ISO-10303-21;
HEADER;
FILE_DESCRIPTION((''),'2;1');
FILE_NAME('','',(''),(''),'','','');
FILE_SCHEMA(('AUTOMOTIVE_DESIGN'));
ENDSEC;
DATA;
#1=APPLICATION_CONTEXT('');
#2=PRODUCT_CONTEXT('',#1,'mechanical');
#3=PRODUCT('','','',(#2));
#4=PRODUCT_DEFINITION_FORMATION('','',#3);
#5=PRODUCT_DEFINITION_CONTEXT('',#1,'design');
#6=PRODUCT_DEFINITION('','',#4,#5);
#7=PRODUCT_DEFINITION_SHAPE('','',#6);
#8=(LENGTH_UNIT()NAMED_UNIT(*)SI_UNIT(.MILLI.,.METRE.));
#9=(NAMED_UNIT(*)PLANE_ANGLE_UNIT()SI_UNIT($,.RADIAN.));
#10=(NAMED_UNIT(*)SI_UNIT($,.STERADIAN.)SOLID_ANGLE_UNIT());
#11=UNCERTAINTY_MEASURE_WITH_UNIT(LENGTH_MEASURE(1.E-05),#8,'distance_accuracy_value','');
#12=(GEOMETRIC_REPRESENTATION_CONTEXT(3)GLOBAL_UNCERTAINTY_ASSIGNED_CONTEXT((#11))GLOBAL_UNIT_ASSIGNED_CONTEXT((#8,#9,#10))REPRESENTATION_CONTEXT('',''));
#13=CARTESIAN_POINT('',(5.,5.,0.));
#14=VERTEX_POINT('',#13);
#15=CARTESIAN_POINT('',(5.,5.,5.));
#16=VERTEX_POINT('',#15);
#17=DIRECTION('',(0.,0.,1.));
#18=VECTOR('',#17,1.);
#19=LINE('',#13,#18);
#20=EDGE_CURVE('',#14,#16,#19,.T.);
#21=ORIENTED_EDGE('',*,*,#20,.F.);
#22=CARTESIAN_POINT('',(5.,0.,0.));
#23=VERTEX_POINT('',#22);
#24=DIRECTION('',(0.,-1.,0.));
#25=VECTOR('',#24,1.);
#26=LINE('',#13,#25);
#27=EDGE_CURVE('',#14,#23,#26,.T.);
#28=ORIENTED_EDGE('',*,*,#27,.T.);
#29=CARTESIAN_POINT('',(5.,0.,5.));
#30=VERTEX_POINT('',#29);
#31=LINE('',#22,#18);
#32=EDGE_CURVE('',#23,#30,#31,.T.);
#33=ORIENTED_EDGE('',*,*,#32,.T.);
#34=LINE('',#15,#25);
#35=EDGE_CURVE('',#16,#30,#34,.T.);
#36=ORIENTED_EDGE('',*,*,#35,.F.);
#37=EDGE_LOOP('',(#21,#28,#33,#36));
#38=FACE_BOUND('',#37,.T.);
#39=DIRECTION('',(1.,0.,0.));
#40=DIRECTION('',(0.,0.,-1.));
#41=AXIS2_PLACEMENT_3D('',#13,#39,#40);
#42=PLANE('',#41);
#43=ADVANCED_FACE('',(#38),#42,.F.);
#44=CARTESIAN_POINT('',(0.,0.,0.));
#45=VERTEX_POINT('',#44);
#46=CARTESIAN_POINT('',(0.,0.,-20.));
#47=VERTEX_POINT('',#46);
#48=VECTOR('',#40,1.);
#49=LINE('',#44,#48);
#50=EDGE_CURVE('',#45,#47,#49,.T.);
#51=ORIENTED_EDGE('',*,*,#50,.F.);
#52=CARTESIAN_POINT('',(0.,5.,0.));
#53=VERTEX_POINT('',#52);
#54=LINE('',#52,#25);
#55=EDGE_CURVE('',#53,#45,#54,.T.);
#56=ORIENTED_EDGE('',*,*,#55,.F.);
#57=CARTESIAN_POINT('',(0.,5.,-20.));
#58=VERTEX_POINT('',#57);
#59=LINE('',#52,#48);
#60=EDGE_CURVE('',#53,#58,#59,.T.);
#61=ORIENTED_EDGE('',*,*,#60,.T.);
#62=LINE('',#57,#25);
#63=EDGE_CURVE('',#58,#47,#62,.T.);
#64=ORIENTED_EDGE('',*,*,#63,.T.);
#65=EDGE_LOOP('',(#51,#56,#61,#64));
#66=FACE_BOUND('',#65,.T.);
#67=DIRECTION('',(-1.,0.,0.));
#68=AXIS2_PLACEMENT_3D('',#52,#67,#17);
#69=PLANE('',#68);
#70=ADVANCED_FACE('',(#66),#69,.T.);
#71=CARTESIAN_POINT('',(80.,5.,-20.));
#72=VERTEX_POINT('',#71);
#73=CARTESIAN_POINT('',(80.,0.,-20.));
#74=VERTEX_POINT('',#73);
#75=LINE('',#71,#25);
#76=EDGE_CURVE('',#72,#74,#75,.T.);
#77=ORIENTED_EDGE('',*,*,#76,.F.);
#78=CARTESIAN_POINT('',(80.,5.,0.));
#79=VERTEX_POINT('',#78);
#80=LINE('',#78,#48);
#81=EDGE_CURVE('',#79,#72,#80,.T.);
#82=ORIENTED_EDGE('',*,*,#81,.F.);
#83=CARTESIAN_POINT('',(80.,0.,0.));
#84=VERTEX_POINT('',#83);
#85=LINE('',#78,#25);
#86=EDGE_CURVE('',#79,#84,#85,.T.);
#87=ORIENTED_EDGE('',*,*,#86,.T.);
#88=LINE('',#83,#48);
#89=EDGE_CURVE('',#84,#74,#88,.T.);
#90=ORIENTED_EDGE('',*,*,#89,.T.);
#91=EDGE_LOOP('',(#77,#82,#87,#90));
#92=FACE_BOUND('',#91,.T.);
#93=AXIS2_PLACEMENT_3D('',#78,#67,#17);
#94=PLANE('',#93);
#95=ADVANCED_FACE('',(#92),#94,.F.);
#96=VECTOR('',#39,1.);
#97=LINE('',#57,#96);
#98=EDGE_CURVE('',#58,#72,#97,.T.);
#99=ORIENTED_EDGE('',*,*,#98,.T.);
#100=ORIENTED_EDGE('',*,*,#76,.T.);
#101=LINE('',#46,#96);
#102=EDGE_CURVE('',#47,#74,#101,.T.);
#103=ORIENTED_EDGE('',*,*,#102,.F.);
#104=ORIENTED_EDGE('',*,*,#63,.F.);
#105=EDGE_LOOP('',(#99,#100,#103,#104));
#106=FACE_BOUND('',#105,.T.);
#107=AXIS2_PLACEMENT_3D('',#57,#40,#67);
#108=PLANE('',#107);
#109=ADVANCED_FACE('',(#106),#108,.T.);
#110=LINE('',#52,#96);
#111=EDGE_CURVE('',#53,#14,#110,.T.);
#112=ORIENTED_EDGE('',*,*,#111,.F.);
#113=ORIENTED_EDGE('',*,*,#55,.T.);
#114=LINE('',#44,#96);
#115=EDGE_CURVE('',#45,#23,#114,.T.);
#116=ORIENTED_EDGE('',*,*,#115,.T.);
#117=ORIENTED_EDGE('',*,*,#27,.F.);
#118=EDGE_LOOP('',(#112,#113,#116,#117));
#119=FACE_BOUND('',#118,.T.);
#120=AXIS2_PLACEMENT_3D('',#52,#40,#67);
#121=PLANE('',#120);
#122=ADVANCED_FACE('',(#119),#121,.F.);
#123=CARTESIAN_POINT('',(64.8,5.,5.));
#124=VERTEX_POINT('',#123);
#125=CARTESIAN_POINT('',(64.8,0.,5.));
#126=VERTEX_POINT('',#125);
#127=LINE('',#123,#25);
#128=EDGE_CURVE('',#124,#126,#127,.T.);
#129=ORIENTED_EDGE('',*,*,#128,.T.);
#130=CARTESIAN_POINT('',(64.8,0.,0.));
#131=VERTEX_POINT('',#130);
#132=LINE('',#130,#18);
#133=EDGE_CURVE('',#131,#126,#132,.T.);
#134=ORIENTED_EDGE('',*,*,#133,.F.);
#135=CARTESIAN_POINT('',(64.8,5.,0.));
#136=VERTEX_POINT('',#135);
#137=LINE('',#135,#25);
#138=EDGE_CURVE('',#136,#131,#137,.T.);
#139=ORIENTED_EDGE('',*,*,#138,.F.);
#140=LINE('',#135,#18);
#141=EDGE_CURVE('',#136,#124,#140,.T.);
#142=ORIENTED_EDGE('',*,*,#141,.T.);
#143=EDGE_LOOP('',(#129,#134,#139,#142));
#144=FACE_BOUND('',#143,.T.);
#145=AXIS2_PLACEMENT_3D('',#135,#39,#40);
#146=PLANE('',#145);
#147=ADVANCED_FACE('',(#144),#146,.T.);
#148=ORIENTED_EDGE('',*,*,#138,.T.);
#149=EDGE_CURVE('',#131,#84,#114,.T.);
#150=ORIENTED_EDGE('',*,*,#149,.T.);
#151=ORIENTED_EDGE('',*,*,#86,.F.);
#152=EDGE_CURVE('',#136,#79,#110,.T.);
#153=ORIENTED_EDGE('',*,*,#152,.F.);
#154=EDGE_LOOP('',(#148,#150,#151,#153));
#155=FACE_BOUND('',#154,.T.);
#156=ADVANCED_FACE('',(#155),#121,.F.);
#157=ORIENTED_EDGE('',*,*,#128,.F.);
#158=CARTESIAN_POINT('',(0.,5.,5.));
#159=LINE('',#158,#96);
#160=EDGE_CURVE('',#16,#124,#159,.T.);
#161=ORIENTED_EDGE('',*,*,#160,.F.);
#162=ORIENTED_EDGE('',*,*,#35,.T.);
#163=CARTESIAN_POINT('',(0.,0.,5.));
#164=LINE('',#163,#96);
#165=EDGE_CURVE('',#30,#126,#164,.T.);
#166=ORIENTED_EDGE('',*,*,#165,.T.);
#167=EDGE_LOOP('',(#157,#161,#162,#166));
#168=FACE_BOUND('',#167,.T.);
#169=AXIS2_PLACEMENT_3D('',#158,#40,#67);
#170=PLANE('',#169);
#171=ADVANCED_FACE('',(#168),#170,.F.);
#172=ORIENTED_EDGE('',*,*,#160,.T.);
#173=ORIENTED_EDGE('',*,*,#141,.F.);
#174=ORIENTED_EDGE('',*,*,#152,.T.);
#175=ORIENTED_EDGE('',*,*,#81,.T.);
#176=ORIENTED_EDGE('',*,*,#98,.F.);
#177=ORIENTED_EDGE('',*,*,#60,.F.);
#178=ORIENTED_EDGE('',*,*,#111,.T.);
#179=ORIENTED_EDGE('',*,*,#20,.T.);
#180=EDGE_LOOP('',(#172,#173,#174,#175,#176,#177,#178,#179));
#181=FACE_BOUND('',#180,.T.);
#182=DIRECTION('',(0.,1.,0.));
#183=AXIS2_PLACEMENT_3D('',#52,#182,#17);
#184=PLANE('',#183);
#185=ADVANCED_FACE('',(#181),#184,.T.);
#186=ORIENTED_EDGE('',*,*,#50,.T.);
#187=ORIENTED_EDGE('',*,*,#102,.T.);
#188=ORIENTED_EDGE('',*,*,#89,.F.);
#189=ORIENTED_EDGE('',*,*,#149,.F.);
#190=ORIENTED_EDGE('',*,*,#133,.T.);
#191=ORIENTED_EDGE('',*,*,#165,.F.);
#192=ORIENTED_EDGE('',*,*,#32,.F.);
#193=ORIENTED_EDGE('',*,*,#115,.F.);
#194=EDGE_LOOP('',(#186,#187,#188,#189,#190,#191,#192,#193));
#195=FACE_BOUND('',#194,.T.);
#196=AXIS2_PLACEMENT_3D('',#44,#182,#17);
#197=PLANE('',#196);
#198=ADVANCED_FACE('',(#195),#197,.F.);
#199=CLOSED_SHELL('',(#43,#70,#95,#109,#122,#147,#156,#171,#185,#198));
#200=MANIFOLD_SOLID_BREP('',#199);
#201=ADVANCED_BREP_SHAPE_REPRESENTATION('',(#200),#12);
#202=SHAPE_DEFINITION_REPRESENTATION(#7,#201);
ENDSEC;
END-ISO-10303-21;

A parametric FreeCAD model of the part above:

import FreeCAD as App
import Part
import Sketcher
Q = App.Units.Quantity


def add_polygon(sketch, points):
    """Adds a closed chain of lines whose ends are joined by coincident constraints."""
    first, n = sketch.GeometryCount, len(points)
    for a, b in zip(points, points[1:] + points[:1]):
        sketch.addGeometry(Part.LineSegment(App.Vector(*a, 0), App.Vector(*b, 0)), False)
    for i in range(n):
        sketch.addConstraint(Sketcher.Constraint("Coincident", first + i, 2, first + (i + 1) % n, 1))

doc = App.newDocument("Part")
body = doc.addObject("PartDesign::Body", "Body")

# Sketch on XZ plane
sketch1 = body.newObject("Sketcher::SketchObject", "Sketch")
sketch1.AttachmentSupport = (doc.getObject("XZ_Plane"), [""])
sketch1.MapMode = "FlatFace"
add_polygon(sketch1, [(0, -20), (0, 0), (5, 0), (5, 5), (65, 5), (65, 0), (80, 0), (80, -20)])  # lines 0-7
sketch1.addConstraint([
    Sketcher.Constraint("Vertical", 0),
    Sketcher.Constraint("Horizontal", 1),
    Sketcher.Constraint("Vertical", 2),
    Sketcher.Constraint("Horizontal", 3),
    Sketcher.Constraint("Vertical", 4),
    Sketcher.Constraint("Horizontal", 5),
    Sketcher.Constraint("Vertical", 6),
    Sketcher.Constraint("Horizontal", 7),
    Sketcher.Constraint("Coincident", 0, 2, -1, 1),
    Sketcher.Constraint("PointOnObject", 4, 2, -1),
    Sketcher.Constraint("Equal", 1, 2),
    Sketcher.Constraint("DistanceX", 1, 1, 1, 2, Q("5 mm")),
    Sketcher.Constraint("DistanceX", 7, 2, 7, 1, Q("80 mm")),
    Sketcher.Constraint("DistanceY", 0, 1, 0, 2, Q("20 mm")),
    Sketcher.Constraint("DistanceX", 3, 1, 3, 2, Q("59.8 mm")),
])
pad1 = body.newObject("PartDesign::Pad", "Pad")
pad1.Profile = sketch1
pad1.Length = 5
pad1.Reversed = True

doc.recompute()
